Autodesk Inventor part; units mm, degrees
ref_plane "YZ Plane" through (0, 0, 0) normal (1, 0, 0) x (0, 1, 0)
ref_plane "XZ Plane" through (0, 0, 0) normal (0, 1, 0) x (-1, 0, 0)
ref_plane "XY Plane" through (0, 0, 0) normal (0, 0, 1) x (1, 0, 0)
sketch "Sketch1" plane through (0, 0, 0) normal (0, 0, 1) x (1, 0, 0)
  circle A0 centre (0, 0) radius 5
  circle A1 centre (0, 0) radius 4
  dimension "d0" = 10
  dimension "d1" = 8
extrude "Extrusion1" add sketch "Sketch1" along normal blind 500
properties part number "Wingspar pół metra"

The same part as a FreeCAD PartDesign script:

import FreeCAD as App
import Part
import Sketcher
from FreeCAD import Vector
Q = App.Units.Quantity

doc = App.newDocument("Part")
body = doc.addObject("PartDesign::Body", "Body")

# Sketch on XY plane
sketch1 = body.newObject("Sketcher::SketchObject", "Sketch")
sketch1.AttachmentSupport = (doc.getObject("XY_Plane"), [""])
sketch1.MapMode = "FlatFace"
sketch1.addGeometry([
    Part.Circle(Vector(0, 0, 0), Vector(0, 0, 1), 5),
    Part.Circle(Vector(0, 0, 0), Vector(0, 0, 1), 4),
], False)
sketch1.addConstraint([
    Sketcher.Constraint("Coincident", 0, 3, -1, 1),
    Sketcher.Constraint("Coincident", 1, 3, -1, 1),
    Sketcher.Constraint("Diameter", 0, Q("10 mm")),
    Sketcher.Constraint("Diameter", 1, Q("8 mm")),
])
pad1 = body.newObject("PartDesign::Pad", "Pad")
pad1.Profile = sketch1
pad1.Length = 500

doc.recompute()
